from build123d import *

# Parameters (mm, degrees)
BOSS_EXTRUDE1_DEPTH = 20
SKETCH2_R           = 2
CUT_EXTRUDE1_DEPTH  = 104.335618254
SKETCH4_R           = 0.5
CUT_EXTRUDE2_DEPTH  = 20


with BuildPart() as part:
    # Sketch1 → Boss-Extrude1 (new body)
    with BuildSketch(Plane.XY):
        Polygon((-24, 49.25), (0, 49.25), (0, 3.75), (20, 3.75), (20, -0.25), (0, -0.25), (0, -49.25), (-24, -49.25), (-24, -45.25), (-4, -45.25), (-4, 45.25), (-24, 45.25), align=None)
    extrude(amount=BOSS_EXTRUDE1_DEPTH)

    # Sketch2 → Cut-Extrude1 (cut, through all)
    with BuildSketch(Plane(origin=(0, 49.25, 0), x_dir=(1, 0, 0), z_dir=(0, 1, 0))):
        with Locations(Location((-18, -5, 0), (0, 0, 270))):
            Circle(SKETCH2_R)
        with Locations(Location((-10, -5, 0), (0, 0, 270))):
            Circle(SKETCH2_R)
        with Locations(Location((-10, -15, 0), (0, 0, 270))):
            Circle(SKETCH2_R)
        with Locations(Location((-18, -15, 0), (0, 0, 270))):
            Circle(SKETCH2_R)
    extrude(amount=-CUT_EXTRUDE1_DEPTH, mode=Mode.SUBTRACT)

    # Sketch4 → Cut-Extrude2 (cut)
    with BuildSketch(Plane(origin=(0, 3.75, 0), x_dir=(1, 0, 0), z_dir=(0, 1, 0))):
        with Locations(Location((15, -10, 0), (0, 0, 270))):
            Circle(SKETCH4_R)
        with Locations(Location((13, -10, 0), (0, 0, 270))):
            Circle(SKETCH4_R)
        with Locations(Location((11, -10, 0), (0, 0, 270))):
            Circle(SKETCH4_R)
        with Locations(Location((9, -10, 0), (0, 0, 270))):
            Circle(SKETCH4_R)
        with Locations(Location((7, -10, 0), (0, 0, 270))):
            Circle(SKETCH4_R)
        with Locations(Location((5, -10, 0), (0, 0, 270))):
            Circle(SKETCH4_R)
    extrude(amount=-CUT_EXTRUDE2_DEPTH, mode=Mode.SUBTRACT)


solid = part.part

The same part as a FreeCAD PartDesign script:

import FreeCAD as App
import Part
import Sketcher


def add_polygon(sketch, points):
    """Adds a closed chain of lines whose ends are joined by coincident constraints."""
    first, n = sketch.GeometryCount, len(points)
    for a, b in zip(points, points[1:] + points[:1]):
        sketch.addGeometry(Part.LineSegment(App.Vector(*a, 0), App.Vector(*b, 0)), False)
    for i in range(n):
        sketch.addConstraint(Sketcher.Constraint("Coincident", first + i, 2, first + (i + 1) % n, 1))

doc = App.newDocument("Part")
body = doc.addObject("PartDesign::Body", "Body")

# Sketch on XY plane
sketch1 = doc.addObject("Sketcher::SketchObject", "Sketch")
body.addObject(sketch1)
sketch1.AttachmentSupport = (doc.XY_Plane, [""])
sketch1.MapMode = "FlatFace"
add_polygon(sketch1, [(0, 49.25), (-24, 49.25), (-24, 45.25), (-4, 45.25), (-4, -45.25), (-24, -45.25), (-24, -49.25), (0, -49.25), (0, -0.25), (20, -0.25), (20, 3.75), (0, 3.75)])  # lines 0-11
sketch1.addConstraint([
    Sketcher.Constraint("Horizontal", 0),
    Sketcher.Constraint("Vertical", 1),
    Sketcher.Constraint("Horizontal", 2),
    Sketcher.Constraint("Vertical", 3),
    Sketcher.Constraint("Horizontal", 4),
    Sketcher.Constraint("Vertical", 5),
    Sketcher.Constraint("Horizontal", 6),
    Sketcher.Constraint("Vertical", 7),
    Sketcher.Constraint("Horizontal", 8),
    Sketcher.Constraint("Vertical", 9),
    Sketcher.Constraint("Horizontal", 10),
    Sketcher.Constraint("Vertical", 11),
    Sketcher.Constraint("Symmetric", 6, 2, 11, 2, -1, 1),
    Sketcher.Constraint("Symmetric", 1, 2, 4, 2, -1),
    Sketcher.Constraint("PointOnObject", 6, 2, -2),
    Sketcher.Constraint("Equal", 4, 8),
    Sketcher.Constraint("Equal", 5, 9),
    Sketcher.Constraint("DistanceX", 0, 2, 0, 1, 24.0),
    Sketcher.Constraint("DistanceX", 2, 1, 2, 2, 20.0),
    Sketcher.Constraint("DistanceY", 1, 2, 1, 1, 4.0),
    Sketcher.Constraint("DistanceY", 7, 1, 7, 2, 49.0),
    Sketcher.Constraint("DistanceY", 3, 2, 3, 1, 90.5),
])
pad1 = doc.addObject("PartDesign::Pad", "Pad")
body.addObject(pad1)
pad1.Profile = sketch1
pad1.Length = 20

# Sketch on XZ plane
sketch2 = doc.addObject("Sketcher::SketchObject", "Sketch001")
body.addObject(sketch2)
sketch2.AttachmentSupport = (doc.XZ_Plane, [""])
sketch2.MapMode = "FlatFace"
sketch2.AttachmentOffset = App.Placement(App.Vector(0, 0, -49.25), App.Rotation())
sketch2.addGeometry([
    Part.Circle(App.Vector(-18, 5, 0), App.Vector(0, 0, 1), 2),
    Part.Circle(App.Vector(-10, 5, 0), App.Vector(0, 0, 1), 2),
    Part.Circle(App.Vector(-10, 15, 0), App.Vector(0, 0, 1), 2),
    Part.Circle(App.Vector(-18, 15, 0), App.Vector(0, 0, 1), 2),
], False)
sketch2.addConstraint([
    Sketcher.Constraint("Equal", 0, 1),
    Sketcher.Constraint("Equal", 1, 2),
    Sketcher.Constraint("Equal", 2, 3),
    Sketcher.Constraint("Horizontal", 0, 3, 1, 3),
    Sketcher.Constraint("Horizontal", 2, 3, 3, 3),
    Sketcher.Constraint("Vertical", 1, 3, 2, 3),
    Sketcher.Constraint("Vertical", 0, 3, 3, 3),
    Sketcher.Constraint("Diameter", 0, 4.0),
    Sketcher.Constraint("DistanceX", 0, 3, -1, 1, 18.0),
    Sketcher.Constraint("DistanceY", -1, 1, 0, 3, 5.0),
    Sketcher.Constraint("DistanceX", 1, 3, -1, 1, 10.0),
    Sketcher.Constraint("DistanceY", -1, 1, 2, 3, 15.0),
])
pocket1 = doc.addObject("PartDesign::Pocket", "Pocket")
body.addObject(pocket1)
pocket1.Profile = sketch2
pocket1.Type = "ThroughAll"
pocket1.Reversed = True

# Sketch on XZ plane
sketch3 = doc.addObject("Sketcher::SketchObject", "Sketch002")
body.addObject(sketch3)
sketch3.AttachmentSupport = (doc.XZ_Plane, [""])
sketch3.MapMode = "FlatFace"
sketch3.AttachmentOffset = App.Placement(App.Vector(0, 0, -3.75), App.Rotation())
sketch3.addGeometry([
    Part.Circle(App.Vector(15, 10, 0), App.Vector(0, 0, 1), 0.5),  # 0
    Part.Circle(App.Vector(13, 10, 0), App.Vector(0, 0, 1), 0.5),  # 1
    Part.Circle(App.Vector(11, 10, 0), App.Vector(0, 0, 1), 0.5),  # 2
    Part.Circle(App.Vector(9, 10, 0), App.Vector(0, 0, 1), 0.5),  # 3
    Part.Circle(App.Vector(7, 10, 0), App.Vector(0, 0, 1), 0.5),  # 4
    Part.Circle(App.Vector(5, 10, 0), App.Vector(0, 0, 1), 0.5),  # 5
], False)
sketch3.addConstraint([
    Sketcher.Constraint("Equal", 0, 1),
    Sketcher.Constraint("Equal", 1, 2),
    Sketcher.Constraint("Equal", 2, 3),
    Sketcher.Constraint("Equal", 3, 4),
    Sketcher.Constraint("Equal", 4, 5),
    Sketcher.Constraint("Horizontal", 0, 3, 1, 3),
    Sketcher.Constraint("Horizontal", 1, 3, 2, 3),
    Sketcher.Constraint("Horizontal", 2, 3, 3, 3),
    Sketcher.Constraint("Horizontal", 3, 3, 4, 3),
    Sketcher.Constraint("Horizontal", 4, 3, 5, 3),
    Sketcher.Constraint("Diameter", 0, 1.0),
    Sketcher.Constraint("DistanceX", -1, 1, 0, 3, 15.0),
    Sketcher.Constraint("DistanceY", -1, 1, 0, 3, 10.0),
    Sketcher.Constraint("DistanceX", -1, 1, 1, 3, 13.0),
    Sketcher.Constraint("DistanceX", -1, 1, 2, 3, 11.0),
    Sketcher.Constraint("DistanceX", -1, 1, 3, 3, 9.0),
    Sketcher.Constraint("DistanceX", -1, 1, 4, 3, 7.0),
    Sketcher.Constraint("DistanceX", -1, 1, 5, 3, 5.0),
])
pocket2 = doc.addObject("PartDesign::Pocket", "Pocket001")
body.addObject(pocket2)
pocket2.Profile = sketch3
pocket2.Length = 20
pocket2.Reversed = True

doc.recompute()
